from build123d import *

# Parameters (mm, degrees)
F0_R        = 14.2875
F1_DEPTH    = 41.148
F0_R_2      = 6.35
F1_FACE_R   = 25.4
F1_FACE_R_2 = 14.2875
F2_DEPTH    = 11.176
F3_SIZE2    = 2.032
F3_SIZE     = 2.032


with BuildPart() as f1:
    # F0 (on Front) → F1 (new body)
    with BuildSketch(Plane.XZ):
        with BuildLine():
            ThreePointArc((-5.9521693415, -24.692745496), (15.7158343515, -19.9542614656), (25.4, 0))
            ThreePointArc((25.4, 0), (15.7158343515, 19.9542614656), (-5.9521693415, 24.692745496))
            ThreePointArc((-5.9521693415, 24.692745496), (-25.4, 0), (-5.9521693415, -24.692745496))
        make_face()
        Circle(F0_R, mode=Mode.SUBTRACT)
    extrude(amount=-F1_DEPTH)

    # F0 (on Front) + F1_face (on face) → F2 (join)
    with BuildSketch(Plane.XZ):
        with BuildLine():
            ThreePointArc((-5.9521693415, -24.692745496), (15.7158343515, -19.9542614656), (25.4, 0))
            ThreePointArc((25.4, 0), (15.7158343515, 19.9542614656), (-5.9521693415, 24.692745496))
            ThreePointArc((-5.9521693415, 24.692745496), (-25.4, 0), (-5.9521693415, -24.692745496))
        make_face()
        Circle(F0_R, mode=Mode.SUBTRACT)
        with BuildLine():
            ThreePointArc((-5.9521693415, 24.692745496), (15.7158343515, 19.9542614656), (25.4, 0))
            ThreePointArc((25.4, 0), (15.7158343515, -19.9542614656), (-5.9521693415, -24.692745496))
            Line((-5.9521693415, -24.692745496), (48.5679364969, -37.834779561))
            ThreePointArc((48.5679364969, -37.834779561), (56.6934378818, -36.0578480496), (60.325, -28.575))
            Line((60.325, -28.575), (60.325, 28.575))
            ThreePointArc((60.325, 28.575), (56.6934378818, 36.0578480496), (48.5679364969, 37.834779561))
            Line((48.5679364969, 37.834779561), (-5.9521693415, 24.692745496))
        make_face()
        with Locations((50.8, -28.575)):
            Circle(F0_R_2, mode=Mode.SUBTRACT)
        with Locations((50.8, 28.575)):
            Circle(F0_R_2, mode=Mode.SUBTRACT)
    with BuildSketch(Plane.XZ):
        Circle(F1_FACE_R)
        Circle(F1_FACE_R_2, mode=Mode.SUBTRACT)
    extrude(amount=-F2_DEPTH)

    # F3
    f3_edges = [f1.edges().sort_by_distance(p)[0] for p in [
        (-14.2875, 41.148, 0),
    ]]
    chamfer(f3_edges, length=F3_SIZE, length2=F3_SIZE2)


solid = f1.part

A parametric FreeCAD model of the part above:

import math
import FreeCAD as App
import Part
import Sketcher
Q = App.Units.Quantity


def edges_at(feature, points):
    """Names of the edges that pass closest to the given points."""
    edges = feature.Shape.Edges
    near = lambda p: min(range(len(edges)), key=lambda i: edges[i].distToShape(Part.Vertex(*p))[0])
    return sorted({f"Edge{near(p) + 1}" for p in points})

doc = App.newDocument("Part")
body = doc.addObject("PartDesign::Body", "Body")

# Sketch on XZ plane
sketch1 = body.newObject("Sketcher::SketchObject", "Sketch")
sketch1.AttachmentSupport = (doc.getObject("XZ_Plane"), [""])
sketch1.MapMode = "FlatFace"
sketch1.addGeometry(Part.ArcOfCircle(Part.Circle(App.Vector(0, 0, 0), App.Vector(0, 0, 1), 25.4), math.radians(-103.552567), math.radians(0)), False)
sketch1.addGeometry(Part.ArcOfCircle(Part.Circle(App.Vector(0, 0, 0), App.Vector(0, 0, 1), 25.4), math.radians(0), math.radians(103.552567)), False)
sketch1.addGeometry(Part.ArcOfCircle(Part.Circle(App.Vector(0, 0, 0), App.Vector(0, 0, 1), 25.4), math.radians(103.552567), math.radians(256.447433)), False)
sketch1.addGeometry(Part.Circle(App.Vector(0, 0, 0), App.Vector(0, 0, 1), 14.2875), False)
sketch1.addConstraint(Sketcher.Constraint("Tangent", 0, 2, 1, 1))
sketch1.addConstraint(Sketcher.Constraint("Tangent", 1, 2, 2, 1))
sketch1.addConstraint(Sketcher.Constraint("Tangent", 2, 2, 0, 1))
sketch1.addConstraint(Sketcher.Constraint("Coincident", 0, 3, -1, 1))
sketch1.addConstraint(Sketcher.Constraint("Coincident", 3, 3, -1, 1))
sketch1.addConstraint(Sketcher.Constraint("PointOnObject", 0, 2, -1))
sketch1.addConstraint(Sketcher.Constraint("Vertical", 1, 2, 2, 2))
sketch1.addConstraint(Sketcher.Constraint("Radius", 0, Q("1 in")))
sketch1.addConstraint(Sketcher.Constraint("Diameter", 3, Q("1.125 in")))
sketch1.addConstraint(Sketcher.Constraint("DistanceX", 1, 2, -1, 1, Q("5.952169 mm")))
pad1 = body.newObject("PartDesign::Pad", "Pad")
pad1.Profile = sketch1
pad1.Length = Q("1.62 in")
pad1.Reversed = True

# Sketch on XZ plane
sketch2 = body.newObject("Sketcher::SketchObject", "Sketch001")
sketch2.AttachmentSupport = (doc.getObject("XZ_Plane"), [""])
sketch2.MapMode = "FlatFace"
sketch2.addGeometry(Part.ArcOfCircle(Part.Circle(App.Vector(0, 0, 0), App.Vector(0, 0, 1), 25.4), math.radians(103.552567), math.radians(256.447433)), False)
sketch2.addGeometry(Part.LineSegment(App.Vector(-5.952169, -24.692745, 0), App.Vector(48.567936, -37.83478, 0)), False)
sketch2.addGeometry(Part.ArcOfCircle(Part.Circle(App.Vector(50.8, -28.575, 0), App.Vector(0, 0, 1), 9.525), math.radians(-103.552567), math.radians(0)), False)
sketch2.addGeometry(Part.LineSegment(App.Vector(60.325, -28.575, 0), App.Vector(60.325, 28.575, 0)), False)
sketch2.addGeometry(Part.ArcOfCircle(Part.Circle(App.Vector(50.8, 28.575, 0), App.Vector(0, 0, 1), 9.525), math.radians(0), math.radians(103.552567)), False)
sketch2.addGeometry(Part.LineSegment(App.Vector(48.567936, 37.83478, 0), App.Vector(-5.952169, 24.692745, 0)), False)
sketch2.addGeometry(Part.Circle(App.Vector(0, 0, 0), App.Vector(0, 0, 1), 14.2875), False)
sketch2.addGeometry(Part.Circle(App.Vector(50.8, -28.575, 0), App.Vector(0, 0, 1), 6.35), False)
sketch2.addGeometry(Part.Circle(App.Vector(50.8, 28.575, 0), App.Vector(0, 0, 1), 6.35), False)
sketch2.addConstraint(Sketcher.Constraint("Tangent", 0, 2, 1, 1))
sketch2.addConstraint(Sketcher.Constraint("Tangent", 1, 2, 2, 1))
sketch2.addConstraint(Sketcher.Constraint("Tangent", 2, 2, 3, 1))
sketch2.addConstraint(Sketcher.Constraint("Tangent", 3, 2, 4, 1))
sketch2.addConstraint(Sketcher.Constraint("Tangent", 4, 2, 5, 1))
sketch2.addConstraint(Sketcher.Constraint("Tangent", 5, 2, 0, 1))
sketch2.addConstraint(Sketcher.Constraint("Vertical", 3))
sketch2.addConstraint(Sketcher.Constraint("Coincident", 0, 3, -1, 1))
sketch2.addConstraint(Sketcher.Constraint("Coincident", 6, 3, -1, 1))
sketch2.addConstraint(Sketcher.Constraint("Coincident", 7, 3, 2, 3))
sketch2.addConstraint(Sketcher.Constraint("Coincident", 8, 3, 4, 3))
sketch2.addConstraint(Sketcher.Constraint("Equal", 2, 4))
sketch2.addConstraint(Sketcher.Constraint("Equal", 7, 8))
sketch2.addConstraint(Sketcher.Constraint("Vertical", 1, 2, 4, 2))
sketch2.addConstraint(Sketcher.Constraint("Radius", 0, Q("1 in")))
sketch2.addConstraint(Sketcher.Constraint("Diameter", 7, Q("0.5 in")))
sketch2.addConstraint(Sketcher.Constraint("Diameter", 6, Q("1.125 in")))
sketch2.addConstraint(Sketcher.Constraint("DistanceX", -1, 1, 2, 3, Q("2 in")))
sketch2.addConstraint(Sketcher.Constraint("Radius", 2, Q("0.375 in")))
sketch2.addConstraint(Sketcher.Constraint("DistanceY", 3, 1, 3, 2, Q("2.25 in")))
pad2 = body.newObject("PartDesign::Pad", "Pad001")
pad2.Profile = sketch2
pad2.Length = Q("0.44 in")
pad2.Reversed = True
doc.recompute()

chamfer = body.newObject("PartDesign::Chamfer", "Chamfer")
chamfer.Base = (pad2, edges_at(pad2, [(-14.287, 41.148, 0)]))
chamfer.ChamferType = "Two distances"
chamfer.Size = Q("0.08 in")
chamfer.Size2 = Q("0.08 in")

doc.recompute()
